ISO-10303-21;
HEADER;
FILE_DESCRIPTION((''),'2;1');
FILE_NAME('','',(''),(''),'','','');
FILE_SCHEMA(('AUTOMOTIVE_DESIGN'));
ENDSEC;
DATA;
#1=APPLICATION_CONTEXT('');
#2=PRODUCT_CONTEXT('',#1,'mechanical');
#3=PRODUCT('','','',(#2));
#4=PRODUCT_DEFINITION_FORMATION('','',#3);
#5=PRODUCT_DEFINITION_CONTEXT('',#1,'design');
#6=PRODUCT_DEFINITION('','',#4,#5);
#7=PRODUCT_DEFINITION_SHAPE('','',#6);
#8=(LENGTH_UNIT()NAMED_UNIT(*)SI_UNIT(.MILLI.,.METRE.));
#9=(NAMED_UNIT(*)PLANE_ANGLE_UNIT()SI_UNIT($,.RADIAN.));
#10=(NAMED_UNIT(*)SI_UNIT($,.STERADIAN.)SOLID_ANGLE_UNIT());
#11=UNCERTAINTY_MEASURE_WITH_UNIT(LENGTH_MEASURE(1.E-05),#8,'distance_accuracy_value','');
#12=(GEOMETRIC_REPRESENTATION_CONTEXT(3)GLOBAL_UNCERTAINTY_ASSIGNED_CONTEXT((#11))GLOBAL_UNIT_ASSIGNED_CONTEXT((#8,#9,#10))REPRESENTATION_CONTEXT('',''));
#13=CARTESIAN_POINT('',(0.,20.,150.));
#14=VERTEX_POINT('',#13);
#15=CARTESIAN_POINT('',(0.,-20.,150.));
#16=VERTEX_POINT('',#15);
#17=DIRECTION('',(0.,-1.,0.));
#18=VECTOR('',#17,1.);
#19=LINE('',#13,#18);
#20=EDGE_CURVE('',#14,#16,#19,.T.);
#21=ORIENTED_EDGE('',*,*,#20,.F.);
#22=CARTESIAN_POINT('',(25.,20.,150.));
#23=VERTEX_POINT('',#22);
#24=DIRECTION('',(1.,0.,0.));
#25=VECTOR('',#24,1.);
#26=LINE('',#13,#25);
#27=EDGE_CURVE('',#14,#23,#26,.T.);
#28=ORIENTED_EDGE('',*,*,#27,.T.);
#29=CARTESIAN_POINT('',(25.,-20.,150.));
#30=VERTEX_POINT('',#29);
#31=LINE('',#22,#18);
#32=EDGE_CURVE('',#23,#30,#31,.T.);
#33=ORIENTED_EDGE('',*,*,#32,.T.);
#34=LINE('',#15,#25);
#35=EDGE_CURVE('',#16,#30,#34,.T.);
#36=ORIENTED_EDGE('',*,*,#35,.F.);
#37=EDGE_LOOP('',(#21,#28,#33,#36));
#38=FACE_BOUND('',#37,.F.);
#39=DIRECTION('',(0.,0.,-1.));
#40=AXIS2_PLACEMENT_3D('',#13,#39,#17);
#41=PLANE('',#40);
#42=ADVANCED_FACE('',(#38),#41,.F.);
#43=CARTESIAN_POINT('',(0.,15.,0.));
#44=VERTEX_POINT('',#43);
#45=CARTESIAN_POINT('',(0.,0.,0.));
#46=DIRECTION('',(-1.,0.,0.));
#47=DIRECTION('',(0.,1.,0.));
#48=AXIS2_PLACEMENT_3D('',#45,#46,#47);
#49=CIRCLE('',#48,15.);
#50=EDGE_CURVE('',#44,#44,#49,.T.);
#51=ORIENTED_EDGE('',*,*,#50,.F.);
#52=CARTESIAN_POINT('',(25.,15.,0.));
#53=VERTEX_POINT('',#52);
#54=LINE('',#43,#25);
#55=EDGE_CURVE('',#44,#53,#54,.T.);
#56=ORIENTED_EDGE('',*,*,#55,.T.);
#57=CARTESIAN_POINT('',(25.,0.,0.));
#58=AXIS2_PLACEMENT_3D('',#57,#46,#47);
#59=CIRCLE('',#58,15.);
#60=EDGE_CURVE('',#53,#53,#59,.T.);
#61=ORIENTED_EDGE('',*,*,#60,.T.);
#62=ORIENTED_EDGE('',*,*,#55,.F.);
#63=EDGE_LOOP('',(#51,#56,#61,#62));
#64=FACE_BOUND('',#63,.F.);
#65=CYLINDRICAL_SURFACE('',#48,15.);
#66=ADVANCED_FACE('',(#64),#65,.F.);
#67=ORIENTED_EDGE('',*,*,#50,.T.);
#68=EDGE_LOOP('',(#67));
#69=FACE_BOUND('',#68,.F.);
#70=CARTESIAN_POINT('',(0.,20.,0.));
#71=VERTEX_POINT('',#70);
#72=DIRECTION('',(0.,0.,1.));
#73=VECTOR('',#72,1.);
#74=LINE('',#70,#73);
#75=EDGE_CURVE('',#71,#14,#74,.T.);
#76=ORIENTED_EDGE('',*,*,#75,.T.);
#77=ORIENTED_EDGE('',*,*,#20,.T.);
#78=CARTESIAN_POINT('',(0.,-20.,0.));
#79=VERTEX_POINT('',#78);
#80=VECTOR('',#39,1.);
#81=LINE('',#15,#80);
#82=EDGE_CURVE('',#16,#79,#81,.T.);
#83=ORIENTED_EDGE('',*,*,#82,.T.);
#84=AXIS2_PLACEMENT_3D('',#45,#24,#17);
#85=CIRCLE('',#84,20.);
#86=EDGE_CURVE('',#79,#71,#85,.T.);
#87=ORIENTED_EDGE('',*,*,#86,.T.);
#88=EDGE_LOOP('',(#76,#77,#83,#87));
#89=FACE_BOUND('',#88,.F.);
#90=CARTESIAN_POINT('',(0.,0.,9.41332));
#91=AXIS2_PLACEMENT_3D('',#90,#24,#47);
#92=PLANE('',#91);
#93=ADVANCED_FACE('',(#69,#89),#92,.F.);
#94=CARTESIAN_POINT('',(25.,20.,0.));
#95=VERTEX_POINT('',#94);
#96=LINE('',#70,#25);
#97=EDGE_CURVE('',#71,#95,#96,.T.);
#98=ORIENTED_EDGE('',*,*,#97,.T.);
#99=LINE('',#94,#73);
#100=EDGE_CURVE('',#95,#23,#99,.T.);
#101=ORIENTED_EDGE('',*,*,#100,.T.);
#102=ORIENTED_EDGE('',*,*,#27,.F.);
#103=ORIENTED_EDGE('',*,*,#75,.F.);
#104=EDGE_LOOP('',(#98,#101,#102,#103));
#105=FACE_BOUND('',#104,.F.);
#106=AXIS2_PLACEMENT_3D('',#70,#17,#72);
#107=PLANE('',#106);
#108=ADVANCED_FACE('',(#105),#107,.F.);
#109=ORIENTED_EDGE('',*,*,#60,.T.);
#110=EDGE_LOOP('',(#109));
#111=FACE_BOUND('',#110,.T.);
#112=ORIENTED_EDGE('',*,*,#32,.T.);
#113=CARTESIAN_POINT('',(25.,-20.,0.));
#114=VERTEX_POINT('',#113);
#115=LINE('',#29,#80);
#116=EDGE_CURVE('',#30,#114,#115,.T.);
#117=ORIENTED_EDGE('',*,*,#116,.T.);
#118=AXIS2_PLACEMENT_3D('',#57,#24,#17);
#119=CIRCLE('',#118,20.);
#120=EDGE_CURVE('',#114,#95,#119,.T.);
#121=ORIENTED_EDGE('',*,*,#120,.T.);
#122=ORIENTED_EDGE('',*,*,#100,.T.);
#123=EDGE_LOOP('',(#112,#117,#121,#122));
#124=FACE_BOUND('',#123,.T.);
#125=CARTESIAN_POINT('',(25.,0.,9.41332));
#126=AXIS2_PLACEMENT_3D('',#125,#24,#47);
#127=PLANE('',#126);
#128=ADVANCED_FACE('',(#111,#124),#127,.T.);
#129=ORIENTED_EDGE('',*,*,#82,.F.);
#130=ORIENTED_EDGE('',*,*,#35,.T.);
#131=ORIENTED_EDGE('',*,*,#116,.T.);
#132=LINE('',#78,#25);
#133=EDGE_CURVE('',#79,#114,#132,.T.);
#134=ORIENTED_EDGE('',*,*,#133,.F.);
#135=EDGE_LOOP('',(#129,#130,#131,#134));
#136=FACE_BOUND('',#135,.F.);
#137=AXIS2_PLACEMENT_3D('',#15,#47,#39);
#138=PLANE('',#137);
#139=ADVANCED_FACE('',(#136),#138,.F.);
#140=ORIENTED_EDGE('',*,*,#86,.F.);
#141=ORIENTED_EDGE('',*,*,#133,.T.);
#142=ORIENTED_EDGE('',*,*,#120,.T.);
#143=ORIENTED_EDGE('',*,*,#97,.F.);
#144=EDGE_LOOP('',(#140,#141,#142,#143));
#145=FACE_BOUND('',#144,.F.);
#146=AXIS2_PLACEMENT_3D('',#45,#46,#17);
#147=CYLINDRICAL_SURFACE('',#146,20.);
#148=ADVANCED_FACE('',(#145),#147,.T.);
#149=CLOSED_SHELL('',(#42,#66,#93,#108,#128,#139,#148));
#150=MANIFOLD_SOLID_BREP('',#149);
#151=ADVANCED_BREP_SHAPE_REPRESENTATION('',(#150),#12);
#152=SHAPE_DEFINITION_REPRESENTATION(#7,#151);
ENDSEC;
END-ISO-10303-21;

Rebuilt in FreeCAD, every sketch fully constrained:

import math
import FreeCAD as App
import Part
import Sketcher
from FreeCAD import Vector

doc = App.newDocument("Part")
params = doc.addObject("Spreadsheet::Sheet", "Params")
for row, (alias, value) in enumerate([
    ("sketch1_diameter", "30 mm"),
    ("sketch1_radius", "20 mm"),
    ("sketch1_height", "150 mm"),
    ("pad1_length", "25 mm"),
], start=1):
    params.set(f"A{row}", alias)
    params.set(f"B{row}", "=" + value)
    params.setAlias(f"B{row}", alias)

body = doc.addObject("PartDesign::Body", "Body")

sketch1 = body.newObject("Sketcher::SketchObject", "Sketch")
sketch1.AttachmentSupport = (doc.getObject("YZ_Plane"), [""])
sketch1.MapMode = "FlatFace"
sketch1.addGeometry([
    Part.ArcOfCircle(Part.Circle(Vector(0, 0, 0), Vector(0, 0, 1), 20), math.radians(180), math.radians(360)),
    Part.LineSegment(Vector(20, 0, 0), Vector(20, 150, 0)),
    Part.LineSegment(Vector(20, 150, 0), Vector(-20, 150, 0)),
    Part.LineSegment(Vector(-20, 150, 0), Vector(-20, 0, 0)),
    Part.Circle(Vector(0, 0, 0), Vector(0, 0, 1), 15),
], False)
sketch1.addConstraint([
    Sketcher.Constraint("Tangent", 0, 2, 1, 1),
    Sketcher.Constraint("Coincident", 1, 2, 2, 1),
    Sketcher.Constraint("Coincident", 2, 2, 3, 1),
    Sketcher.Constraint("Tangent", 3, 2, 0, 1),
    Sketcher.Constraint("Vertical", 1),
    Sketcher.Constraint("Horizontal", 2),
    Sketcher.Constraint("Vertical", 3),
    Sketcher.Constraint("Coincident", 0, 3, -1, 1),
    Sketcher.Constraint("Coincident", 4, 3, -1, 1),
    Sketcher.Constraint("Diameter", 4, 30.0),
    Sketcher.Constraint("Radius", 0, 20.0),
    Sketcher.Constraint("DistanceY", 1, 1, 1, 2, 150.0),
])
sketch1.setExpression("Constraints[9]", "Params.sketch1_diameter")
sketch1.setExpression("Constraints[10]", "Params.sketch1_radius")
sketch1.setExpression("Constraints[11]", "Params.sketch1_height")
pad1 = body.newObject("PartDesign::Pad", "Pad")
pad1.Profile = sketch1
pad1.setExpression("Length", "Params.pad1_length")

doc.recompute()
